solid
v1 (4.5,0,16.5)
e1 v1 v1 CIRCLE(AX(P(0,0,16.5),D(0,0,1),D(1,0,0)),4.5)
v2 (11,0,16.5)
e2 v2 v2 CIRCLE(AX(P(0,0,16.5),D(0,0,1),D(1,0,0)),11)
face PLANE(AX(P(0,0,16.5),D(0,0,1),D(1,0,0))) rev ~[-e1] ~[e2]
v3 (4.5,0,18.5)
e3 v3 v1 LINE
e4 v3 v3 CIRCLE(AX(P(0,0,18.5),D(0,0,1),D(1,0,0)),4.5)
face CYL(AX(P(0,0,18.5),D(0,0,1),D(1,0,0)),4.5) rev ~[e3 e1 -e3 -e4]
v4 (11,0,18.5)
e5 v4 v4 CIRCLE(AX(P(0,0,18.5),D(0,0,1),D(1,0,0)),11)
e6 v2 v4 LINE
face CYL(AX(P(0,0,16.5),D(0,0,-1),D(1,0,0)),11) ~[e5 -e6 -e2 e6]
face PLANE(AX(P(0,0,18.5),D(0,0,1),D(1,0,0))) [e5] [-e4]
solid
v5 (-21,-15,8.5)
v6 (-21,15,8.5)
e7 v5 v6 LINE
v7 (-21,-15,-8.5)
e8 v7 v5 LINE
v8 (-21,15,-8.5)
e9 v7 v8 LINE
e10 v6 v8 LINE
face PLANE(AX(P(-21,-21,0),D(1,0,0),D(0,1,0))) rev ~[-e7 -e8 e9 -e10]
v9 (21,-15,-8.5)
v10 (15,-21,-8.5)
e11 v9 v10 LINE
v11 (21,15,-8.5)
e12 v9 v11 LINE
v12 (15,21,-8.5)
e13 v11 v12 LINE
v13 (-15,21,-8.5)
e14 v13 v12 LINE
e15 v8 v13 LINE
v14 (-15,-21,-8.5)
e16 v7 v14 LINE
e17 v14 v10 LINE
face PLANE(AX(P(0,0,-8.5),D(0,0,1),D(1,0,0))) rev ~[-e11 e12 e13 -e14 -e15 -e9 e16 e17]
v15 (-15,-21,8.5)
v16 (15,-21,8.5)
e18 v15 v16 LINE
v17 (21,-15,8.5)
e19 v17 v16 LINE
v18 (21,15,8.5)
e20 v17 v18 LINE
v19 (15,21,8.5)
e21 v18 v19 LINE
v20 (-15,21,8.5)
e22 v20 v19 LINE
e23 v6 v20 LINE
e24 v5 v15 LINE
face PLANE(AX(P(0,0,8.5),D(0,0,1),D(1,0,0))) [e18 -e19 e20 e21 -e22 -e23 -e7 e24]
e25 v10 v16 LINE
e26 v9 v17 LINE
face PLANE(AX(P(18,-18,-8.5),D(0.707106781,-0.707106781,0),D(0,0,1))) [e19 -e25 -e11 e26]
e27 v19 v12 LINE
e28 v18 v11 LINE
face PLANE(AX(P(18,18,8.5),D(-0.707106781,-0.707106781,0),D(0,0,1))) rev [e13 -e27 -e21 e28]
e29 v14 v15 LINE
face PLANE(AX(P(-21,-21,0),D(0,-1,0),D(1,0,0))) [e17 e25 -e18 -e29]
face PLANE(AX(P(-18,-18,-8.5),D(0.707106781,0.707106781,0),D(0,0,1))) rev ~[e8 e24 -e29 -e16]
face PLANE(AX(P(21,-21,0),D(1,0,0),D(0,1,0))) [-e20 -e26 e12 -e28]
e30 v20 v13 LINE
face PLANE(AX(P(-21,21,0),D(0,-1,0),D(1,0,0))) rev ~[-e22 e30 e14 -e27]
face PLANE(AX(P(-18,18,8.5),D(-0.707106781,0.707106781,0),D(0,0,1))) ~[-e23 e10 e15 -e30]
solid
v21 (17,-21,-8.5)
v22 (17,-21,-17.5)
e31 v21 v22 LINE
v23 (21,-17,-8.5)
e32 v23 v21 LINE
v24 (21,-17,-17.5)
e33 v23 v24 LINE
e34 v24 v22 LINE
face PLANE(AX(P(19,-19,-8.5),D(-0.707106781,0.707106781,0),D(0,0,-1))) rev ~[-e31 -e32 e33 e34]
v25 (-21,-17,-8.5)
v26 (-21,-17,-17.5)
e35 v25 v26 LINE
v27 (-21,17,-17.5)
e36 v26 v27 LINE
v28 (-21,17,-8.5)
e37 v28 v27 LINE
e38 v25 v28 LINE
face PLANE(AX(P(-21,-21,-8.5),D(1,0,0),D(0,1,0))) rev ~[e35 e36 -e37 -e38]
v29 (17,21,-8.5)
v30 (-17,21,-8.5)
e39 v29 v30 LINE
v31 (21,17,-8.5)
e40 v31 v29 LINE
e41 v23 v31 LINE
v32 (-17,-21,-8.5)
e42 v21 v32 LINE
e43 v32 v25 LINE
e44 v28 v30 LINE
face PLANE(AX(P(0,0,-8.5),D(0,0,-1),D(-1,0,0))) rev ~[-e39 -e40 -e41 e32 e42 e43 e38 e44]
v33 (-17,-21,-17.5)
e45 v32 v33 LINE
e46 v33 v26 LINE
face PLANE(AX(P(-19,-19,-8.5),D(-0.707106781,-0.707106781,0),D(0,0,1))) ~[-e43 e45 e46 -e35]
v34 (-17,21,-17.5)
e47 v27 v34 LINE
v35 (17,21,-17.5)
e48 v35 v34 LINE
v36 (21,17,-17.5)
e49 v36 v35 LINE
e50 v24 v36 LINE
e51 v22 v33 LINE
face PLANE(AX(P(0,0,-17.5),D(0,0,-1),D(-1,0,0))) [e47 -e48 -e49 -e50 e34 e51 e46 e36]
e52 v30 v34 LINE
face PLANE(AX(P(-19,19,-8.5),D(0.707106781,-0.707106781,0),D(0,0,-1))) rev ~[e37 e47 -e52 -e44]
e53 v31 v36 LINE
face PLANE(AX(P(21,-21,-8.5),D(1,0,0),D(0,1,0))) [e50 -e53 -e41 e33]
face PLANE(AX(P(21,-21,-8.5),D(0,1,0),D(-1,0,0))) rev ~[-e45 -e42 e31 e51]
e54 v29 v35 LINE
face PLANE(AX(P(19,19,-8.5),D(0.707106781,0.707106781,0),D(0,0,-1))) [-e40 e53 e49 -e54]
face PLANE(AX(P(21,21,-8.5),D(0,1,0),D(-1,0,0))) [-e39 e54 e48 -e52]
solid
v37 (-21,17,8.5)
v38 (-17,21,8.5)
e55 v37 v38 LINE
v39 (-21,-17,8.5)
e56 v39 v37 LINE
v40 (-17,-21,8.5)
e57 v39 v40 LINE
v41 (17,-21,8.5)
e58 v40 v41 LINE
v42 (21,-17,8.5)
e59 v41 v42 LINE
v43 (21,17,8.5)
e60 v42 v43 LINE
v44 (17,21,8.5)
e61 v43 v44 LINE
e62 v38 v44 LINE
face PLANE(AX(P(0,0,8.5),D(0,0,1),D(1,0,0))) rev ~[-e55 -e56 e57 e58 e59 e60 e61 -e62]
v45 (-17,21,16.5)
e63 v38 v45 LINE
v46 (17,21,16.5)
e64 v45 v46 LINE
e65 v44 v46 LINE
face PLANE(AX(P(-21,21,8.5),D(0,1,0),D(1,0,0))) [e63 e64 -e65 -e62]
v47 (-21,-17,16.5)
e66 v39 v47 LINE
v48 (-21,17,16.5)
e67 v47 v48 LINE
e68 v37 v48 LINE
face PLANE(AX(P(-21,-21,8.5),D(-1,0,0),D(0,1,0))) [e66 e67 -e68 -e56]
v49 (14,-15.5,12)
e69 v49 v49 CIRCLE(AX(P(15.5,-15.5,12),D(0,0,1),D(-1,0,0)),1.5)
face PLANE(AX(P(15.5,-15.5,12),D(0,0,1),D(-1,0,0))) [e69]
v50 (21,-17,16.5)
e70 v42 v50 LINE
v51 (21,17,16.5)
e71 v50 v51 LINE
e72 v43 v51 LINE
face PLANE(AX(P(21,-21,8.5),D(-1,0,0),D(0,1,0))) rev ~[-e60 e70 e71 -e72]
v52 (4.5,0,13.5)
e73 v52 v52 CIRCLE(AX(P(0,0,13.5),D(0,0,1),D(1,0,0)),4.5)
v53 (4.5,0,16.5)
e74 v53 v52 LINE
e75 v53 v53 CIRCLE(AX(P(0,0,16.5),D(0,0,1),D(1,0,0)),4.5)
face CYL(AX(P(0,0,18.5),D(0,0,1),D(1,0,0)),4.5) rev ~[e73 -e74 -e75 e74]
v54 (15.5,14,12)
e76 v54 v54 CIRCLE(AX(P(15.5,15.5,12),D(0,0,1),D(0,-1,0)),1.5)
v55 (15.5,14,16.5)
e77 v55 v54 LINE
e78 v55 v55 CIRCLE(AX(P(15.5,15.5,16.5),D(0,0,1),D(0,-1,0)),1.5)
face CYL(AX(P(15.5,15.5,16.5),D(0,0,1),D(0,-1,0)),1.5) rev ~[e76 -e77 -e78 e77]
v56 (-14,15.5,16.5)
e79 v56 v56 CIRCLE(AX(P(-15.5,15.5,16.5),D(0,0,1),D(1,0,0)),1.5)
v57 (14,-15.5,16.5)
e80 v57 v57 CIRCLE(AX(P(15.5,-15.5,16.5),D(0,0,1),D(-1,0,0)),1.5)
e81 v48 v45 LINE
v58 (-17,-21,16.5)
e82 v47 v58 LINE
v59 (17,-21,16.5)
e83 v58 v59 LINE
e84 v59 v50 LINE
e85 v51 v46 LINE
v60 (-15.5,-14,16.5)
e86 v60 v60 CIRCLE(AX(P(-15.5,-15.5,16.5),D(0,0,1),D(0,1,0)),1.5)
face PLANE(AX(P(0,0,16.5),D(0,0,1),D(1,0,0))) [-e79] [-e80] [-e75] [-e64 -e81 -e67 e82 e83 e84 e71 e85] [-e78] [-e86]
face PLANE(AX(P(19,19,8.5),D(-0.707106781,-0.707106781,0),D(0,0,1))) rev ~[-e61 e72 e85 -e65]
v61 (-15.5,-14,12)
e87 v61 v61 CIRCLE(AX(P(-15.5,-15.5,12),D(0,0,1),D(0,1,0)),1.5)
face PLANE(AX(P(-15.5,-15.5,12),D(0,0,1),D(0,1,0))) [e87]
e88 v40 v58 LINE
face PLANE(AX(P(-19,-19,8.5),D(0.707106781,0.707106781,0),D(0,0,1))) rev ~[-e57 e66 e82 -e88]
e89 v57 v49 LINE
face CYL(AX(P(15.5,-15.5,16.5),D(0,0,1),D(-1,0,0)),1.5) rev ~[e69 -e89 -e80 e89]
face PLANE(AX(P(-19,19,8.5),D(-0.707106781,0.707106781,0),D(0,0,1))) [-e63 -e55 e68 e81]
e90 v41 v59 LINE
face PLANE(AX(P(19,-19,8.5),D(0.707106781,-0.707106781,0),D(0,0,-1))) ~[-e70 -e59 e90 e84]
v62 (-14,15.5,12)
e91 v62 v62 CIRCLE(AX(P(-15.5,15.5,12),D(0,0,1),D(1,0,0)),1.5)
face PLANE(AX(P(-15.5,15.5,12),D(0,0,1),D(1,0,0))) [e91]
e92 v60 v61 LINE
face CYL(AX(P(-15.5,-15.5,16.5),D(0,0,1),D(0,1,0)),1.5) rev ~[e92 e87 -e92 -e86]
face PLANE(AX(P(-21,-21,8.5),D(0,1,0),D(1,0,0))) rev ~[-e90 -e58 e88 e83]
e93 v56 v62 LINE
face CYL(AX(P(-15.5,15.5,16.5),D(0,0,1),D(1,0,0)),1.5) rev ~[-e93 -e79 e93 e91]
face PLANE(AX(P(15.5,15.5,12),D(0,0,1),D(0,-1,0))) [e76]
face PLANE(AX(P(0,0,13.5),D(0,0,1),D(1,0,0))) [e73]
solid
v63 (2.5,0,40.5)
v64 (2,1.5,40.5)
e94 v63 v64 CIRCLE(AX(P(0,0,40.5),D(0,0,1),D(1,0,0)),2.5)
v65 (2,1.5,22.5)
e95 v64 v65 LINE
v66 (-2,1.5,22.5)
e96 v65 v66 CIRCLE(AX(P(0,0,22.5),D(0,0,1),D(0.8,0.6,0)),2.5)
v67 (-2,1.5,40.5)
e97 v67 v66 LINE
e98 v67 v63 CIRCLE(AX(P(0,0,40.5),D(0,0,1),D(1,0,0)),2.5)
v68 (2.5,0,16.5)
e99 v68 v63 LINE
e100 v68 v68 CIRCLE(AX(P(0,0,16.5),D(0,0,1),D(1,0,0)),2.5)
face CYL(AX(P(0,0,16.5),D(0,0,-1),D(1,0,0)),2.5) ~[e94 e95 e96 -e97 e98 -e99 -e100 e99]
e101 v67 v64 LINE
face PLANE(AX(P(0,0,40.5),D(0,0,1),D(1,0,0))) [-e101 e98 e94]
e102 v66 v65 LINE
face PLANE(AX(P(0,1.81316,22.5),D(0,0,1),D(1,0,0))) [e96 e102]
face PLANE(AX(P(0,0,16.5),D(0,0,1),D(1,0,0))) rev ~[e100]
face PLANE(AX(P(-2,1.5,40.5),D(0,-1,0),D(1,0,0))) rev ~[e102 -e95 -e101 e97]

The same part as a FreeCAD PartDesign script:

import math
import FreeCAD as App
import Part
import Sketcher
from FreeCAD import Vector
Q = App.Units.Quantity


def edges_at(feature, points):
    """Names of the edges that pass closest to the given points."""
    edges = feature.Shape.Edges
    near = lambda p: min(range(len(edges)), key=lambda i: edges[i].distToShape(Part.Vertex(*p))[0])
    return sorted({f"Edge{near(p) + 1}" for p in points})


def add_polygon(sketch, points):
    """Adds a closed chain of lines whose ends are joined by coincident constraints."""
    first, n = sketch.GeometryCount, len(points)
    for a, b in zip(points, points[1:] + points[:1]):
        sketch.addGeometry(Part.LineSegment(App.Vector(*a, 0), App.Vector(*b, 0)), False)
    for i in range(n):
        sketch.addConstraint(Sketcher.Constraint("Coincident", first + i, 2, first + (i + 1) % n, 1))

doc = App.newDocument("Part")
body = doc.addObject("PartDesign::Body", "Body")

# Sketch on XY plane
sketch1 = body.newObject("Sketcher::SketchObject", "Sketch")
sketch1.AttachmentSupport = (doc.getObject("XY_Plane"), [""])
sketch1.MapMode = "FlatFace"
add_polygon(sketch1, [(-21, 21), (-21, -21), (21, -21), (21, 21)])  # lines 0-3
sketch1.addConstraint([
    Sketcher.Constraint("Vertical", 0),
    Sketcher.Constraint("Horizontal", 1),
    Sketcher.Constraint("Vertical", 2),
    Sketcher.Constraint("Horizontal", 3),
    Sketcher.Constraint("Symmetric", 0, 2, 2, 2, -1, 1),
    Sketcher.Constraint("Equal", 3, 0),
    Sketcher.Constraint("DistanceX", 1, 1, 1, 2, Q("42 mm")),
])
pad1 = body.newObject("PartDesign::Pad", "Pad")
pad1.Profile = sketch1
pad1.Length = 17
pad1.Midplane = True
doc.recompute()

chamfer = body.newObject("PartDesign::Chamfer", "Chamfer")
chamfer.Base = (pad1, edges_at(pad1, [
    (21, -21, 0),
    (-21, -21, 0),
    (-21, 21, 0),
    (21, 21, 0),
]))
chamfer.Size = 6
body2 = doc.addObject("PartDesign::Body", "Body001")

# Sketch on XY plane
sketch2 = body2.newObject("Sketcher::SketchObject", "Sketch001")
sketch2.AttachmentSupport = (doc.getObject("XY_Plane001"), [""])
sketch2.MapMode = "FlatFace"
sketch2.AttachmentOffset = App.Placement(Vector(0, 0, 8.5), App.Rotation())
add_polygon(sketch2, [(-21, 21), (-21, -21), (21, -21), (21, 21)])  # lines 0-3
sketch2.addConstraint([
    Sketcher.Constraint("Vertical", 0),
    Sketcher.Constraint("Horizontal", 1),
    Sketcher.Constraint("Vertical", 2),
    Sketcher.Constraint("Horizontal", 3),
    Sketcher.Constraint("Symmetric", 0, 2, 2, 2, -1, 1),
    Sketcher.Constraint("Equal", 3, 0),
    Sketcher.Constraint("DistanceX", 1, 1, 1, 2, Q("42 mm")),
])
pad2 = body2.newObject("PartDesign::Pad", "Pad001")
pad2.Profile = sketch2
pad2.Length = 8
doc.recompute()

chamfer2 = body2.newObject("PartDesign::Chamfer", "Chamfer001")
chamfer2.Base = (pad2, edges_at(pad2, [
    (21, -21, 12.5),
    (-21, -21, 12.5),
    (-21, 21, 12.5),
    (21, 21, 12.5),
]))
chamfer2.Size = 4
body3 = doc.addObject("PartDesign::Body", "Body002")

# Sketch on XY plane
sketch3 = body3.newObject("Sketcher::SketchObject", "Sketch002")
sketch3.AttachmentSupport = (doc.getObject("XY_Plane002"), [""])
sketch3.MapMode = "FlatFace"
sketch3.AttachmentOffset = App.Placement(Vector(0, 0, -8.5), App.Rotation())
add_polygon(sketch3, [(21, 21), (21, -21), (-21, -21), (-21, 21)])  # lines 0-3
sketch3.addConstraint([
    Sketcher.Constraint("Vertical", 0),
    Sketcher.Constraint("Horizontal", 1),
    Sketcher.Constraint("Vertical", 2),
    Sketcher.Constraint("Horizontal", 3),
    Sketcher.Constraint("Symmetric", 0, 2, 2, 2, -1, 1),
    Sketcher.Constraint("Equal", 3, 0),
    Sketcher.Constraint("DistanceX", 1, 2, 1, 1, Q("42 mm")),
])
pad3 = body3.newObject("PartDesign::Pad", "Pad002")
pad3.Profile = sketch3
pad3.Length = 9
pad3.Reversed = True
doc.recompute()

chamfer3 = body3.newObject("PartDesign::Chamfer", "Chamfer002")
chamfer3.Base = (pad3, edges_at(pad3, [
    (-21, -21, -13),
    (21, -21, -13),
    (21, 21, -13),
    (-21, 21, -13),
]))
chamfer3.Size = 4
body4 = doc.addObject("PartDesign::Body", "Body003")

# Sketch on XY plane
sketch4 = body4.newObject("Sketcher::SketchObject", "Sketch003")
sketch4.AttachmentSupport = (doc.getObject("XY_Plane003"), [""])
sketch4.MapMode = "FlatFace"
sketch4.AttachmentOffset = App.Placement(Vector(0, 0, 16.5), App.Rotation())
sketch4.addGeometry(Part.Circle(Vector(0, 0, 0), Vector(0, 0, 1), 11), False)
sketch4.addConstraint([
    Sketcher.Constraint("Coincident", 0, 3, -1, 1),
    Sketcher.Constraint("Diameter", 0, Q("22 mm")),
])
pad4 = body4.newObject("PartDesign::Pad", "Pad003")
pad4.Profile = sketch4
pad4.Length = 2
body5 = doc.addObject("PartDesign::Body", "Body004")

# Sketch on XY plane
sketch5 = body5.newObject("Sketcher::SketchObject", "Sketch004")
sketch5.AttachmentSupport = (doc.getObject("XY_Plane004"), [""])
sketch5.MapMode = "FlatFace"
sketch5.AttachmentOffset = App.Placement(Vector(0, 0, 18.5), App.Rotation())
sketch5.addGeometry(Part.Circle(Vector(0, 0, 0), Vector(0, 0, 1), 4.5), False)
sketch5.addConstraint([
    Sketcher.Constraint("Coincident", 0, 3, -1, 1),
    Sketcher.Constraint("Diameter", 0, Q("9 mm")),
])
pad5 = body5.newObject("PartDesign::Pad", "Pad004")
pad5.Profile = sketch5
pad5.Length = 5
pad5.Reversed = True
doc.recompute()

body6 = doc.addObject("PartDesign::Body", "Body005")
body6.BaseFeature = body5
boolean = body2.newObject("PartDesign::Boolean", "Boolean")
boolean.Type = "Cut"
boolean.addObjects([body6])
doc.recompute()

# Sketch on XY plane
sketch6 = body2.newObject("Sketcher::SketchObject", "Sketch005")
sketch6.AttachmentSupport = (doc.getObject("XY_Plane001"), [""])
sketch6.MapMode = "FlatFace"
sketch6.AttachmentOffset = App.Placement(Vector(0, 0, 16.5), App.Rotation())
sketch6.addGeometry(Part.Circle(Vector(-15.5, 15.5, 0), Vector(0, 0, 1), 1.5), False)
sketch6.addConstraint([
    Sketcher.Constraint("Diameter", 0, Q("3 mm")),
    Sketcher.Constraint("DistanceX", 0, 3, -1, 1, Q("15.5 mm")),
    Sketcher.Constraint("DistanceY", -1, 1, 0, 3, Q("15.5 mm")),
])
pocket1 = body2.newObject("PartDesign::Pocket", "Pocket")
pocket1.Profile = sketch6
pocket1.Length = 4.5
doc.recompute()

polarpattern = body2.newObject("PartDesign::PolarPattern", "PolarPattern")
polarpattern.Originals = [pocket1]
polarpattern.Axis = (doc.getObject("Z_Axis001"), [""])
polarpattern.Angle = 360
polarpattern.Occurrences = 4
body2.Tip = polarpattern
doc.recompute()

boolean2 = body4.newObject("PartDesign::Boolean", "Boolean001")
boolean2.Type = "Cut"
boolean2.addObjects([body5])
body7 = doc.addObject("PartDesign::Body", "Body006")

# Sketch on XY plane
sketch7 = body7.newObject("Sketcher::SketchObject", "Sketch006")
sketch7.AttachmentSupport = (doc.getObject("XY_Plane006"), [""])
sketch7.MapMode = "FlatFace"
sketch7.AttachmentOffset = App.Placement(Vector(0, 0, 16.5), App.Rotation())
sketch7.addGeometry(Part.Circle(Vector(0, 0, 0), Vector(0, 0, 1), 2.5), False)
sketch7.addConstraint([
    Sketcher.Constraint("Coincident", 0, 3, -1, 1),
    Sketcher.Constraint("Diameter", 0, Q("5 mm")),
])
pad6 = body7.newObject("PartDesign::Pad", "Pad005")
pad6.Profile = sketch7
pad6.Length = 24

# Sketch on XY plane
sketch8 = body7.newObject("Sketcher::SketchObject", "Sketch007")
sketch8.AttachmentSupport = (doc.getObject("XY_Plane006"), [""])
sketch8.MapMode = "FlatFace"
sketch8.AttachmentOffset = App.Placement(Vector(0, 0, 40.5), App.Rotation())
sketch8.addGeometry([
    Part.LineSegment(Vector(-2, 1.5, 0), Vector(2, 1.5, 0)),
    Part.ArcOfCircle(Part.Circle(Vector(0, 0, 0), Vector(0, 0, 1), 2.5), math.radians(36.869898), math.radians(143.130102)),
], False)
sketch8.addConstraint([
    Sketcher.Constraint("Coincident", 0, 1, 1, 2),
    Sketcher.Constraint("Coincident", 1, 1, 0, 2),
    Sketcher.Constraint("Horizontal", 0),
    Sketcher.Constraint("Coincident", 1, 3, -1, 1),
    Sketcher.Constraint("Radius", 1, Q("2.5 mm")),
    Sketcher.Constraint("DistanceX", 0, 1, 0, 2, Q("4 mm")),
])
pocket2 = body7.newObject("PartDesign::Pocket", "Pocket001")
pocket2.Profile = sketch8
pocket2.Length = 18

doc.recompute()
